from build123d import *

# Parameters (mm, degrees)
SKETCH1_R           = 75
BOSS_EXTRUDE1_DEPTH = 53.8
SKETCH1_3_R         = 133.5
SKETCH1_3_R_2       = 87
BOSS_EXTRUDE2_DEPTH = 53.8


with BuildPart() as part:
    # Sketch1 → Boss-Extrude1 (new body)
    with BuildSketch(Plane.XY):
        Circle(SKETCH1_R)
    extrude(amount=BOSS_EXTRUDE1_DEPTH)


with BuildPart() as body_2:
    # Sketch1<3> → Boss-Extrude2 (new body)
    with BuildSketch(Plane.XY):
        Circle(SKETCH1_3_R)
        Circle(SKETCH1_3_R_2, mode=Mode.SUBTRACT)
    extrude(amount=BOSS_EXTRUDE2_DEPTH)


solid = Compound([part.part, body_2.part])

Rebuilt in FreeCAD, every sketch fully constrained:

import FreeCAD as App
import Part
import Sketcher

V = App.Vector
Q = App.Units.Quantity

doc = App.newDocument("Part")
body = doc.addObject("PartDesign::Body", "Body")

sketch1 = body.newObject("Sketcher::SketchObject", "Sketch")
sketch1.AttachmentSupport = (doc.getObject("XY_Plane"), [""])
sketch1.MapMode = "FlatFace"
sketch1.addGeometry(Part.Circle(V(0, 0, 0), V(0, 0, 1), 75), False)
sketch1.addConstraint(Sketcher.Constraint("Coincident", 0, 3, -1, 1))
sketch1.addConstraint(Sketcher.Constraint("Diameter", 0, Q("150 mm")))
pad1 = body.newObject("PartDesign::Pad", "Pad")
pad1.Profile = sketch1
pad1.Length = 53.8
body2 = doc.addObject("PartDesign::Body", "Body001")

sketch2 = body2.newObject("Sketcher::SketchObject", "Sketch001")
sketch2.AttachmentSupport = (doc.getObject("XY_Plane001"), [""])
sketch2.MapMode = "FlatFace"
sketch2.addGeometry(Part.Circle(V(0, 0, 0), V(0, 0, 1), 134), False)
sketch2.addGeometry(Part.Circle(V(0, 0, 0), V(0, 0, 1), 87), False)
sketch2.addConstraint(Sketcher.Constraint("Coincident", 0, 3, -1, 1))
sketch2.addConstraint(Sketcher.Constraint("Coincident", 1, 3, -1, 1))
sketch2.addConstraint(Sketcher.Constraint("Diameter", 0, Q("267 mm")))
sketch2.addConstraint(Sketcher.Constraint("Diameter", 1, Q("174 mm")))
pad2 = body2.newObject("PartDesign::Pad", "Pad001")
pad2.Profile = sketch2
pad2.Length = 53.8

doc.recompute()
